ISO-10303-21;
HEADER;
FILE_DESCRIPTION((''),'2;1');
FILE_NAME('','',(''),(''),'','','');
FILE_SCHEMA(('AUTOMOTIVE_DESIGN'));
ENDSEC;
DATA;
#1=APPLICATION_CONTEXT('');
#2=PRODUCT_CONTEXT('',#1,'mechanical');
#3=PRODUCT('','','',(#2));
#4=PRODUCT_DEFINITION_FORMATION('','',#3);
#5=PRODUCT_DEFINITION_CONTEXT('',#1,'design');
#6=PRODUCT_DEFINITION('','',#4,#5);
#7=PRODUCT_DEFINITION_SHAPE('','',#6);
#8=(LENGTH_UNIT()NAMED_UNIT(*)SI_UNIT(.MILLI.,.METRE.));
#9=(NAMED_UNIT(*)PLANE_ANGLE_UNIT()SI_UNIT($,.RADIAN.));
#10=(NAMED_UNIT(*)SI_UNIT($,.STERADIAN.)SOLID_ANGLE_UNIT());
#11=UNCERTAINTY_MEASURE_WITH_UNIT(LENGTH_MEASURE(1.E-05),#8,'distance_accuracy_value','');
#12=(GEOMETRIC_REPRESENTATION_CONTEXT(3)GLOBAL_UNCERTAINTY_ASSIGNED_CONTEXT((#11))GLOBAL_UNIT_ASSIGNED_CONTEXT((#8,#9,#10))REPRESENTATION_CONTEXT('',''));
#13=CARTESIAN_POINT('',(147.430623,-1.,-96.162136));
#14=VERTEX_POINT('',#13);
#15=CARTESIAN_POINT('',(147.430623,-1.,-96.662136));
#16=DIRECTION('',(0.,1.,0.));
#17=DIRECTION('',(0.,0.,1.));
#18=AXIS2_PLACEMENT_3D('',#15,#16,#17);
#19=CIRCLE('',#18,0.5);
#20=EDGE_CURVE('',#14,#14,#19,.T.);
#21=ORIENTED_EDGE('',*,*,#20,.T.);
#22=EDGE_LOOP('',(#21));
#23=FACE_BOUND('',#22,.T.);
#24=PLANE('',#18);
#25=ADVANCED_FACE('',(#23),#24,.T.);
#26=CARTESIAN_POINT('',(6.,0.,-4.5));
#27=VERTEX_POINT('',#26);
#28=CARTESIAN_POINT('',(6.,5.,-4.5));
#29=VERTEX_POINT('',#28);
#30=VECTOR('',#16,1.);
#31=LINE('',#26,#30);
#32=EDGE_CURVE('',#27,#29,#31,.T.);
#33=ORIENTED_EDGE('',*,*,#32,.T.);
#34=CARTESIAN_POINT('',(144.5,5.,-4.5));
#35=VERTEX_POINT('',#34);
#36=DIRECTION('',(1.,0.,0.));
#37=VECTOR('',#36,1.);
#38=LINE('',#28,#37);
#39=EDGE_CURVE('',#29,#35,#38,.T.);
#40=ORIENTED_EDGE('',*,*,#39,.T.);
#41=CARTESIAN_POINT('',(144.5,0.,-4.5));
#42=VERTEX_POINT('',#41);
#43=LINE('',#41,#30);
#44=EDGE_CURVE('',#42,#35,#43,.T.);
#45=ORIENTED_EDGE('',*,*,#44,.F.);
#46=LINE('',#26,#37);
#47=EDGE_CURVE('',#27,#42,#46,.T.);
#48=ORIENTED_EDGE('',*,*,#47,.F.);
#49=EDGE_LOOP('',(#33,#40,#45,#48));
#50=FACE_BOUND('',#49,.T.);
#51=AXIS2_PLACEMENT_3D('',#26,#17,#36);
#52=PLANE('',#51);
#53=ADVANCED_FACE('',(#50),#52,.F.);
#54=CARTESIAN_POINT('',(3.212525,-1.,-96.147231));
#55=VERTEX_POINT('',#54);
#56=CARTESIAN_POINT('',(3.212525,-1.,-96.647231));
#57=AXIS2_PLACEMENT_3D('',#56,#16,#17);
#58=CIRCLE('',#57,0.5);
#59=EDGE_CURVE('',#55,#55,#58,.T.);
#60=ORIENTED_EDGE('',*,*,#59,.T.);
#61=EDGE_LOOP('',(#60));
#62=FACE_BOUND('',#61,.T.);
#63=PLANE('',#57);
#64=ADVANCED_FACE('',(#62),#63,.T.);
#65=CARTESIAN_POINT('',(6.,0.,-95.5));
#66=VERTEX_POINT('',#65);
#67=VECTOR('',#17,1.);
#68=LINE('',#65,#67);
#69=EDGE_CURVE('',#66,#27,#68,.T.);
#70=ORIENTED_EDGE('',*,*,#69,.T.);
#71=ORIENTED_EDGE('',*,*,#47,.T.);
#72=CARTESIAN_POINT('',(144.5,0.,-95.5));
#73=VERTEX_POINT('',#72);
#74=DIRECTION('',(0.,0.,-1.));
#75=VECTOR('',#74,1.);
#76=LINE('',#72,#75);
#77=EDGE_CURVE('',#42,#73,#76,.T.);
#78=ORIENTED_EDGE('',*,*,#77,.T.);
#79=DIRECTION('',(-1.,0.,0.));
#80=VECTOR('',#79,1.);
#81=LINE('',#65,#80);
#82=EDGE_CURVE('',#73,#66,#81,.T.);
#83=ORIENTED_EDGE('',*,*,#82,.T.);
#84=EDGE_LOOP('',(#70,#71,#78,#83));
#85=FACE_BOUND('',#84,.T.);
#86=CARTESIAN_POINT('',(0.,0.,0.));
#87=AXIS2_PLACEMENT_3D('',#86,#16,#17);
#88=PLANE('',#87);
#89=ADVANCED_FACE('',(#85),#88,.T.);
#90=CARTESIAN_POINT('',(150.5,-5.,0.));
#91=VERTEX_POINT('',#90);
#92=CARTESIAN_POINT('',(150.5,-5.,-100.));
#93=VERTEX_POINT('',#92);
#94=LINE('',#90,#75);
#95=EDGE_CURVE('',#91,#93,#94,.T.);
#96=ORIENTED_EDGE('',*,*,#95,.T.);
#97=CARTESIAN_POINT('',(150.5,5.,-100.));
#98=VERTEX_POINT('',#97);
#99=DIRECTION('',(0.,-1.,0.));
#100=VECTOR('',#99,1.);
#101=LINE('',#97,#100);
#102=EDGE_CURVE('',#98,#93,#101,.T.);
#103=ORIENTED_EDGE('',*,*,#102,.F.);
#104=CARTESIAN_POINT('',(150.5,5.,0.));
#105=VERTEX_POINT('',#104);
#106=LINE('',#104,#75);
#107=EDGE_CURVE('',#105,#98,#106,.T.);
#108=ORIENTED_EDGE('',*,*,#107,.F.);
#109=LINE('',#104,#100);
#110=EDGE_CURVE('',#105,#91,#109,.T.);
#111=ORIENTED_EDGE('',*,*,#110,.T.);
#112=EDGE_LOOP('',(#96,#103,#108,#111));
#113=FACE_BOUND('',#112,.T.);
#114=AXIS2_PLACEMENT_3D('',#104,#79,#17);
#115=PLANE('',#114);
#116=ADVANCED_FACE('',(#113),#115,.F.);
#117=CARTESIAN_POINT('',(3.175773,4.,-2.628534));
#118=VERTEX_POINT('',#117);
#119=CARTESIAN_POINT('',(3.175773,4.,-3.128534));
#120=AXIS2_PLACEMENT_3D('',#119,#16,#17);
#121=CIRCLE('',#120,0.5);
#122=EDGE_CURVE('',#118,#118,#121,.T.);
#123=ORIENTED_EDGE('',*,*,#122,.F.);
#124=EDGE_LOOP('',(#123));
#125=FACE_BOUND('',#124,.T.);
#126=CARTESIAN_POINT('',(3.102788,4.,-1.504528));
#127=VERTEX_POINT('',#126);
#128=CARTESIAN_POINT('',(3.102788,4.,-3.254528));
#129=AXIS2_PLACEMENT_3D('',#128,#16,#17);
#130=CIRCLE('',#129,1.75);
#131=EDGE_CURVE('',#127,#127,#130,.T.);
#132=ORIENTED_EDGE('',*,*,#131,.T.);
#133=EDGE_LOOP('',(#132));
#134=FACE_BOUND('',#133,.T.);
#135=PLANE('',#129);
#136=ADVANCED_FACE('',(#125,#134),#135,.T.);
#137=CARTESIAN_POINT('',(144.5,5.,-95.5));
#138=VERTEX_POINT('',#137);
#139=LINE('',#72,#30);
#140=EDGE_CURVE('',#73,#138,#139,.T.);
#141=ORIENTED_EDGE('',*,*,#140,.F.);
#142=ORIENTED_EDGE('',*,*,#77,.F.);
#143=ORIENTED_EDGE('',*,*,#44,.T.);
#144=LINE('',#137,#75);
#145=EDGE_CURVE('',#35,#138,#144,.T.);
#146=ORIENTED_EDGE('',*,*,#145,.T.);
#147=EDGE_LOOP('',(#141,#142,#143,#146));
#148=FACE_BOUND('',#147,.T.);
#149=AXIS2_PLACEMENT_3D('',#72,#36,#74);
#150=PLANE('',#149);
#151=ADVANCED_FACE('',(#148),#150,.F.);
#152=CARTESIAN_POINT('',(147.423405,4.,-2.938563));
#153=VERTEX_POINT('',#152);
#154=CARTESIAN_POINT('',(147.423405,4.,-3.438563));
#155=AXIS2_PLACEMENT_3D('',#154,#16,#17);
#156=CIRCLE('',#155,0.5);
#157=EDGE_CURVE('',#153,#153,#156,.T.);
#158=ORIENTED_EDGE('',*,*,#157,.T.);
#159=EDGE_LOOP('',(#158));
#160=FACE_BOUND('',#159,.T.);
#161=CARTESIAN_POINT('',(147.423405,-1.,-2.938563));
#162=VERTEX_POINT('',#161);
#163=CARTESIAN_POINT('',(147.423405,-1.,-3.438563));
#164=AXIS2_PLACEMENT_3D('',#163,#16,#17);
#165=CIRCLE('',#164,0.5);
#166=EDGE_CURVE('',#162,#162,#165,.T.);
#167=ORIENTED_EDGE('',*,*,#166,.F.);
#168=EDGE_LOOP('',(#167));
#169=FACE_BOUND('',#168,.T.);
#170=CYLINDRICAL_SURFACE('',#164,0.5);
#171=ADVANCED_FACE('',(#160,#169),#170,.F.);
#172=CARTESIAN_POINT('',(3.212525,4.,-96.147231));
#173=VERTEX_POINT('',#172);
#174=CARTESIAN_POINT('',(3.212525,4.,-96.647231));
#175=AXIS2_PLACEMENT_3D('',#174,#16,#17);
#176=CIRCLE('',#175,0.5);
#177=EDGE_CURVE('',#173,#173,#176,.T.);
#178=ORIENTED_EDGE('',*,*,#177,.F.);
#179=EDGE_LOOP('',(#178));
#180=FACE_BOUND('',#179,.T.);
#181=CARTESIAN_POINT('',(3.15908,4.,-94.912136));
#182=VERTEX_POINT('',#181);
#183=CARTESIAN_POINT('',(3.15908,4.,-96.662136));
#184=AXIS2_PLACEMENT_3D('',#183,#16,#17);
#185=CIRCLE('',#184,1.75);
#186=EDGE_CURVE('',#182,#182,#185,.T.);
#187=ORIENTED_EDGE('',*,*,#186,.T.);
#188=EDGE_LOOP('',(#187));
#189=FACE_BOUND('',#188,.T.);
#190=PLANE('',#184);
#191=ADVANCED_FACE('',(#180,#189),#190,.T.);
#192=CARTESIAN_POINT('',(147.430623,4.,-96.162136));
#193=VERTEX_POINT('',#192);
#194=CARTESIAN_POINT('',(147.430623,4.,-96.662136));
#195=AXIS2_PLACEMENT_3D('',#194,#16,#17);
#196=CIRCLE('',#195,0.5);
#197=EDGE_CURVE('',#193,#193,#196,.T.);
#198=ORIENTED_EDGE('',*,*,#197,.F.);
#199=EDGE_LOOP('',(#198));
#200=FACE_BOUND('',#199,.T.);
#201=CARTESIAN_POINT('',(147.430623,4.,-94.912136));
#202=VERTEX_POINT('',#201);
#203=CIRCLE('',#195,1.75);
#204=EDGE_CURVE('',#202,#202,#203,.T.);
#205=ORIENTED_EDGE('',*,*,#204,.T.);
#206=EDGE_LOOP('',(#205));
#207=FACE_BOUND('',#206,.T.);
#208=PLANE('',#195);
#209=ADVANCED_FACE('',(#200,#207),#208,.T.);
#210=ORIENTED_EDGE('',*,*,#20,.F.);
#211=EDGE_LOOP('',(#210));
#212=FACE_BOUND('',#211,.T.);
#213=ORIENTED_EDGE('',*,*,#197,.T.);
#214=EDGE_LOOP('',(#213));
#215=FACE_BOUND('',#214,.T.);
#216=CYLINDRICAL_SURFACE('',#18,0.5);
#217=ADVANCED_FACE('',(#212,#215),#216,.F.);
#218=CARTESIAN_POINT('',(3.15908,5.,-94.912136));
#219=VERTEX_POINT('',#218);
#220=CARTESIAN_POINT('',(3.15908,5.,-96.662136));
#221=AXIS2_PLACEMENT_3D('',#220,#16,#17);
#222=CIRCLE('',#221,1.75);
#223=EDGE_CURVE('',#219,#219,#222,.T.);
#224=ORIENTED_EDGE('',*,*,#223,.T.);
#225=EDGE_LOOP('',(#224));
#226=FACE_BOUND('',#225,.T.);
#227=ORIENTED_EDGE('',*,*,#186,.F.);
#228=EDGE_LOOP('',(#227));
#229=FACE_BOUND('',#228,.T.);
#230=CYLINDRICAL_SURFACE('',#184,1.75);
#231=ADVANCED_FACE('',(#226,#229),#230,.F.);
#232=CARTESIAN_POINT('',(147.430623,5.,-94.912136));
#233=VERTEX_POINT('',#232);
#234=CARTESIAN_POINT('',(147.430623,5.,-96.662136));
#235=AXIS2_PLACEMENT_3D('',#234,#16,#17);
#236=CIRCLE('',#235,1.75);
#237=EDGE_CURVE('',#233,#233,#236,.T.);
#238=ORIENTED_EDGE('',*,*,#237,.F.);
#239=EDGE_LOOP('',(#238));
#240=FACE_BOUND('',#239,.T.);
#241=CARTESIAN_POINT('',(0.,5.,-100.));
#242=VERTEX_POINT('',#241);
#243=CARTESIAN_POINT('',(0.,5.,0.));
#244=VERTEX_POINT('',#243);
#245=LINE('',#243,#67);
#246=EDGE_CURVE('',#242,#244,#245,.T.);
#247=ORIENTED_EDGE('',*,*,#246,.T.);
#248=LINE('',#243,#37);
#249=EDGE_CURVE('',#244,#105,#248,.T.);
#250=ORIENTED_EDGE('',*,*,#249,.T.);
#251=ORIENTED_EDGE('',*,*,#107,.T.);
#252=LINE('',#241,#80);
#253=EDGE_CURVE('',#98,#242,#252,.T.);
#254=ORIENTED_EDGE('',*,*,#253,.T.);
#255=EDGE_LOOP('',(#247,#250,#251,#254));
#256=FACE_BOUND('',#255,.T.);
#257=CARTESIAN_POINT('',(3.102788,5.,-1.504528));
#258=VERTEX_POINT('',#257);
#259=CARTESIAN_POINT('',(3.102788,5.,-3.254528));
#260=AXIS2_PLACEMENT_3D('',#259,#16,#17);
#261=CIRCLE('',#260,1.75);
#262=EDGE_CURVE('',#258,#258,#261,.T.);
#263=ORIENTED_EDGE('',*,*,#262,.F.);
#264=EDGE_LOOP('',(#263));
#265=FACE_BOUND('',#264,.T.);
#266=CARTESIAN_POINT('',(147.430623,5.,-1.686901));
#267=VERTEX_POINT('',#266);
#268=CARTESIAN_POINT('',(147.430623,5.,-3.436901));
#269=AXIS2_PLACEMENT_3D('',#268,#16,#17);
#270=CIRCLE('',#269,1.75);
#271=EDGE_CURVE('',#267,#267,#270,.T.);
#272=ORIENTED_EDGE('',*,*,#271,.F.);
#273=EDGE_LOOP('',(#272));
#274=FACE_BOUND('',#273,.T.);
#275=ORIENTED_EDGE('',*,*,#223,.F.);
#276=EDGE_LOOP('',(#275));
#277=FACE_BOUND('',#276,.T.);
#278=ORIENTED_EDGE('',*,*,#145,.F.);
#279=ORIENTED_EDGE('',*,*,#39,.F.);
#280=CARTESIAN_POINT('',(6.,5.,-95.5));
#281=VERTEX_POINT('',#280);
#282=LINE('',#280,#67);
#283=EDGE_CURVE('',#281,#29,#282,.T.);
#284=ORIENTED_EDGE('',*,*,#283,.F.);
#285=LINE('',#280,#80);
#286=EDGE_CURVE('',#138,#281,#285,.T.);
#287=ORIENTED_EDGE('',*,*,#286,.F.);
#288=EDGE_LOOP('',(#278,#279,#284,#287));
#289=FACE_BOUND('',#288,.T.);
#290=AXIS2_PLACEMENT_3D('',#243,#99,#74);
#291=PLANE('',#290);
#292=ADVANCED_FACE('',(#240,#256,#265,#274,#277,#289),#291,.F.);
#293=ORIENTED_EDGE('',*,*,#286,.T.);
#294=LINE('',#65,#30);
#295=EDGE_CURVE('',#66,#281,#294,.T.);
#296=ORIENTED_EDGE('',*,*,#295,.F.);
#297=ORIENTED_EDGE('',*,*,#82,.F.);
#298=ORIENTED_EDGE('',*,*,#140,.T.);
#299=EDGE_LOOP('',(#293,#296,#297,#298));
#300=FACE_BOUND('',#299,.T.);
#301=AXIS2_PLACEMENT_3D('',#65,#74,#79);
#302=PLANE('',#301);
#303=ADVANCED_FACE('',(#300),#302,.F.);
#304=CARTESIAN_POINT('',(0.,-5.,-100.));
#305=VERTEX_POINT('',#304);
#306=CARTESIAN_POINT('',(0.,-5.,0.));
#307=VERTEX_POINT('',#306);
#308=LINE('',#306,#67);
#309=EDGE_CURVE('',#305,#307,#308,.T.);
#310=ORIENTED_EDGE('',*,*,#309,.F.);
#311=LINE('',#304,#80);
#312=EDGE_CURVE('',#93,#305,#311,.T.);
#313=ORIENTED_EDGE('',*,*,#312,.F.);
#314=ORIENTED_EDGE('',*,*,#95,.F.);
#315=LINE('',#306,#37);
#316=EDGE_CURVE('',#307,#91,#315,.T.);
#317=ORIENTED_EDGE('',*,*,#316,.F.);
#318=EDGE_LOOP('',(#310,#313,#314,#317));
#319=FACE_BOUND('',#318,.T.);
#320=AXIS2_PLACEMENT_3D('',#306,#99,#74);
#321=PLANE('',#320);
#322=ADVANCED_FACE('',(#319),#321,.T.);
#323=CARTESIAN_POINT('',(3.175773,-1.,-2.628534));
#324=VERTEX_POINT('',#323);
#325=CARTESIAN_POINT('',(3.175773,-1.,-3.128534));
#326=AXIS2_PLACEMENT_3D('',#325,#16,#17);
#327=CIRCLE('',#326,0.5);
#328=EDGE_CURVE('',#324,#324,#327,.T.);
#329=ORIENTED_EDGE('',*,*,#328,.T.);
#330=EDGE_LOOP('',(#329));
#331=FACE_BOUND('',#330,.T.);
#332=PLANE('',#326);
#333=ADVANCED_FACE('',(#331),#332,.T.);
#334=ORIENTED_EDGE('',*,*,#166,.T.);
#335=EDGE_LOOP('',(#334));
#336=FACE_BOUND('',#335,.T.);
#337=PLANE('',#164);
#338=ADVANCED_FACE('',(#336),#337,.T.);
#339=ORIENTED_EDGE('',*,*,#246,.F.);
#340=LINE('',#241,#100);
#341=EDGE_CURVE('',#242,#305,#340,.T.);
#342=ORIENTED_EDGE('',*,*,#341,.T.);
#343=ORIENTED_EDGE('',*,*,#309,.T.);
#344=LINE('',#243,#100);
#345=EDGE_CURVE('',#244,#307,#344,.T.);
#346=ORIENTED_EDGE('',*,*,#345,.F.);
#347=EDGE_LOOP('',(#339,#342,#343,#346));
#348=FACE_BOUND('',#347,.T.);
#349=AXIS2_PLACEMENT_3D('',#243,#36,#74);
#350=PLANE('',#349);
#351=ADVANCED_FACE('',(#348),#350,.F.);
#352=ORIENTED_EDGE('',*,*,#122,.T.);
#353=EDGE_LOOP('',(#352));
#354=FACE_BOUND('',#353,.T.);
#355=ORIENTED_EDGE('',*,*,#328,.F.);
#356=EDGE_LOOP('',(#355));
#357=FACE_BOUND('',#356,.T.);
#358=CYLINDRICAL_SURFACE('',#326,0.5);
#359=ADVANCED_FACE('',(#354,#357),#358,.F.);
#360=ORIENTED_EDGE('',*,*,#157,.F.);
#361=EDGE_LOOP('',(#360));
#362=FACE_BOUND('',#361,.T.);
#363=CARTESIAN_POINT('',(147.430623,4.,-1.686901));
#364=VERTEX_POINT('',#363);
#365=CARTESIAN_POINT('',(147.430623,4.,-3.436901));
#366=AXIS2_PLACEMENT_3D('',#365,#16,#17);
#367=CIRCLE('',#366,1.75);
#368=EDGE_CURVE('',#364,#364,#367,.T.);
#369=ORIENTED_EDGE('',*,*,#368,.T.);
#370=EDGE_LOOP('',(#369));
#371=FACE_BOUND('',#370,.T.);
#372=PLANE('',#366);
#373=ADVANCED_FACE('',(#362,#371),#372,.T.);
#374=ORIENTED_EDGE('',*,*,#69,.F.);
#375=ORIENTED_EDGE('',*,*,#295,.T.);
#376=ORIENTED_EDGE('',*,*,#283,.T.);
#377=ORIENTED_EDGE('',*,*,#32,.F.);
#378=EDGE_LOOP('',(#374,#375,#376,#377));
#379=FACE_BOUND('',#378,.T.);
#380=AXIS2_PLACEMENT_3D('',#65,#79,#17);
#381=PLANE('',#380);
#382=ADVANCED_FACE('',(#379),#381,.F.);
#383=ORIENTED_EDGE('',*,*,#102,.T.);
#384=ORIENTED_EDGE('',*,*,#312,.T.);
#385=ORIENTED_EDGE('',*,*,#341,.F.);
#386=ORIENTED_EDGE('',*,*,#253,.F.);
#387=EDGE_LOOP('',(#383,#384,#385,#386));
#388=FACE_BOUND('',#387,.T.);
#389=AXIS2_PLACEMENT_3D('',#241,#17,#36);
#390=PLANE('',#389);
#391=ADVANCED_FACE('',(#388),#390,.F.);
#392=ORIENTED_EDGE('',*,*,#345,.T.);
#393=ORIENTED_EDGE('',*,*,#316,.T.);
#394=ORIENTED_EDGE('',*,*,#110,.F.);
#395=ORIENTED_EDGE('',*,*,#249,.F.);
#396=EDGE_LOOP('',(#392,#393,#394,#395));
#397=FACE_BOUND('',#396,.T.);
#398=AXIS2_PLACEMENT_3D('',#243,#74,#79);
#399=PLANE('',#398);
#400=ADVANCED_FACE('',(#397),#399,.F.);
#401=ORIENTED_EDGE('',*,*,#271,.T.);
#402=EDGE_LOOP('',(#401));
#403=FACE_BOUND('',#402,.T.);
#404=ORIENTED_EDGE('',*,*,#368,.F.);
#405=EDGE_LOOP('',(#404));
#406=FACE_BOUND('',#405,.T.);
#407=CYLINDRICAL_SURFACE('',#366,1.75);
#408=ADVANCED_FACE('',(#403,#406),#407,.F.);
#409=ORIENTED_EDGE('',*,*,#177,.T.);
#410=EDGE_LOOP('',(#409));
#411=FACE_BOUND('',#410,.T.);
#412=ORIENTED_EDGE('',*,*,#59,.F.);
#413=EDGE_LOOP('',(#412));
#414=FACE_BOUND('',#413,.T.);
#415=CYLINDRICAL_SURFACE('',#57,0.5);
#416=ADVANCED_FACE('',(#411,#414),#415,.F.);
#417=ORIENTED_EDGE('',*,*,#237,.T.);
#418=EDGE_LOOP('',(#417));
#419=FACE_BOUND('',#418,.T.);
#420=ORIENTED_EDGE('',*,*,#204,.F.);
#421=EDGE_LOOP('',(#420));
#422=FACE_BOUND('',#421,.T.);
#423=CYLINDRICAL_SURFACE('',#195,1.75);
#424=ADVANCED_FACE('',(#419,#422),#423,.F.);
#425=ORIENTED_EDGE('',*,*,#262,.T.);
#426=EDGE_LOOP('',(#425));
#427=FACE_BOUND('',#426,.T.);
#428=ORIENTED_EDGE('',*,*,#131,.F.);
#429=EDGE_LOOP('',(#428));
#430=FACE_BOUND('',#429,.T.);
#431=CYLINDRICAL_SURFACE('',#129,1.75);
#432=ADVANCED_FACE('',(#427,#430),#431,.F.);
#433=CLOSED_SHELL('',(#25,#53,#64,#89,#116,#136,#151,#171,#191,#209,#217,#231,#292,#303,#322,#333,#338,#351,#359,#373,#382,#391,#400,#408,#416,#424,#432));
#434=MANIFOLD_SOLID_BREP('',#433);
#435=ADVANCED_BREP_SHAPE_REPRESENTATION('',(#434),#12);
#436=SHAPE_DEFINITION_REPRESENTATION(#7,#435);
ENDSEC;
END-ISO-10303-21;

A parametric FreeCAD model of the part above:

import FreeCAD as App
import Part
import Sketcher
from FreeCAD import Vector
Q = App.Units.Quantity


def add_polygon(sketch, points):
    """Adds a closed chain of lines whose ends are joined by coincident constraints."""
    first, n = sketch.GeometryCount, len(points)
    for a, b in zip(points, points[1:] + points[:1]):
        sketch.addGeometry(Part.LineSegment(App.Vector(*a, 0), App.Vector(*b, 0)), False)
    for i in range(n):
        sketch.addConstraint(Sketcher.Constraint("Coincident", first + i, 2, first + (i + 1) % n, 1))

doc = App.newDocument("Part")
body = doc.addObject("PartDesign::Body", "Body")

sketch1 = body.newObject("Sketcher::SketchObject", "Sketch")
sketch1.AttachmentSupport = (doc.getObject("XZ_Plane"), [""])
sketch1.MapMode = "FlatFace"
add_polygon(sketch1, [(0, -100), (0, 0), (150, 0), (150, -100)])
sketch1.addConstraint([
    Sketcher.Constraint("Vertical", 0),
    Sketcher.Constraint("Horizontal", 1),
    Sketcher.Constraint("Vertical", 2),
    Sketcher.Constraint("Horizontal", 3),
    Sketcher.Constraint("Coincident", 0, 2, -1, 1),
    Sketcher.Constraint("DistanceY", 0, 1, 0, 2, Q("100 mm")),
    Sketcher.Constraint("DistanceX", 1, 1, 1, 2, Q("150.5 mm")),
])
pad1 = body.newObject("PartDesign::Pad", "Pad")
pad1.Profile = sketch1
pad1.Length = 10
pad1.Midplane = True

sketch2 = body.newObject("Sketcher::SketchObject", "Sketch001")
sketch2.AttachmentSupport = (doc.getObject("XZ_Plane"), [""])
sketch2.MapMode = "FlatFace"
sketch2.AttachmentOffset = App.Placement(Vector(0, 0, -5), App.Rotation())
add_polygon(sketch2, [(6, -96), (6, -4), (144, -4), (144, -96)])
sketch2.addConstraint([
    Sketcher.Constraint("Vertical", 0),
    Sketcher.Constraint("Horizontal", 1),
    Sketcher.Constraint("Vertical", 2),
    Sketcher.Constraint("Horizontal", 3),
    Sketcher.Constraint("DistanceY", 0, 1, 0, 2, Q("91 mm")),
    Sketcher.Constraint("DistanceX", 1, 1, 1, 2, Q("138.5 mm")),
    Sketcher.Constraint("DistanceX", -1, 1, 0, 2, Q("6 mm")),
    Sketcher.Constraint("DistanceY", 0, 2, -1, 1, Q("4.5 mm")),
])
pocket1 = body.newObject("PartDesign::Pocket", "Pocket")
pocket1.Profile = sketch2
pocket1.Length = 5
pocket1.Reversed = True

sketch3 = body.newObject("Sketcher::SketchObject", "Sketch002")
sketch3.AttachmentSupport = (doc.getObject("XZ_Plane"), [""])
sketch3.MapMode = "FlatFace"
sketch3.AttachmentOffset = App.Placement(Vector(0, 0, -5), App.Rotation())
sketch3.addGeometry([
    Part.Circle(Vector(3.2, -96.7, 0), Vector(0, 0, 1), 1.8),
    Part.Circle(Vector(3.1, -3.3, 0), Vector(0, 0, 1), 1.8),
    Part.Circle(Vector(147.4, -3.4, 0), Vector(0, 0, 1), 1.8),
    Part.Circle(Vector(147.4, -96.7, 0), Vector(0, 0, 1), 1.8),
], False)
sketch3.addConstraint([
    Sketcher.Constraint("Equal", 0, 1),
    Sketcher.Constraint("Equal", 1, 2),
    Sketcher.Constraint("Equal", 2, 3),
    Sketcher.Constraint("Horizontal", 0, 3, 3, 3),
    Sketcher.Constraint("Vertical", 2, 3, 3, 3),
    Sketcher.Constraint("Diameter", 0, Q("3.5 mm")),
    Sketcher.Constraint("DistanceY", 2, 3, -1, 1, Q("3.436901 mm")),
    Sketcher.Constraint("DistanceX", -1, 1, 0, 3, Q("3.15908 mm")),
    Sketcher.Constraint("DistanceX", -1, 1, 1, 3, Q("3.102788 mm")),
    Sketcher.Constraint("DistanceY", 0, 3, 1, 3, Q("93.407608 mm")),
    Sketcher.Constraint("DistanceY", 0, 3, -1, 1, Q("96.662136 mm")),
    Sketcher.Constraint("DistanceX", -1, 1, 2, 3, Q("147.430623 mm")),
])
pocket2 = body.newObject("PartDesign::Pocket", "Pocket001")
pocket2.Profile = sketch3
pocket2.Length = 1
pocket2.Reversed = True

sketch4 = body.newObject("Sketcher::SketchObject", "Sketch003")
sketch4.AttachmentSupport = (doc.getObject("XZ_Plane"), [""])
sketch4.MapMode = "FlatFace"
sketch4.AttachmentOffset = App.Placement(Vector(0, 0, -4), App.Rotation())
sketch4.addGeometry([
    Part.Circle(Vector(3.2, -96.6, 0), Vector(0, 0, 1), 0.5),
    Part.Circle(Vector(3.2, -3.1, 0), Vector(0, 0, 1), 0.5),
    Part.Circle(Vector(147.4, -3.4, 0), Vector(0, 0, 1), 0.5),
    Part.Circle(Vector(147.4, -96.7, 0), Vector(0, 0, 1), 0.5),
], False)
sketch4.addConstraint([
    Sketcher.Constraint("Equal", 0, 1),
    Sketcher.Constraint("Equal", 1, 2),
    Sketcher.Constraint("Equal", 2, 3),
    Sketcher.Constraint("Diameter", 0, Q("1 mm")),
    Sketcher.Constraint("DistanceX", 0, 3, 3, 3, Q("144.218098 mm")),
    Sketcher.Constraint("DistanceY", 3, 3, 1, 3, Q("93.533601 mm")),
    Sketcher.Constraint("DistanceY", 0, 3, -1, 1, Q("96.647231 mm")),
    Sketcher.Constraint("DistanceX", 1, 3, 0, 3, Q("0.036752 mm")),
    Sketcher.Constraint("DistanceX", 1, 3, 2, 3, Q("144.247632 mm")),
    Sketcher.Constraint("DistanceY", 2, 3, 1, 3, Q("0.310028 mm")),
    Sketcher.Constraint("DistanceY", 0, 3, 2, 3, Q("93.208668 mm")),
    Sketcher.Constraint("DistanceX", -1, 1, 0, 3, Q("3.212525 mm")),
])
pocket3 = body.newObject("PartDesign::Pocket", "Pocket002")
pocket3.Profile = sketch4
pocket3.Length = 5
pocket3.Reversed = True

doc.recompute()
